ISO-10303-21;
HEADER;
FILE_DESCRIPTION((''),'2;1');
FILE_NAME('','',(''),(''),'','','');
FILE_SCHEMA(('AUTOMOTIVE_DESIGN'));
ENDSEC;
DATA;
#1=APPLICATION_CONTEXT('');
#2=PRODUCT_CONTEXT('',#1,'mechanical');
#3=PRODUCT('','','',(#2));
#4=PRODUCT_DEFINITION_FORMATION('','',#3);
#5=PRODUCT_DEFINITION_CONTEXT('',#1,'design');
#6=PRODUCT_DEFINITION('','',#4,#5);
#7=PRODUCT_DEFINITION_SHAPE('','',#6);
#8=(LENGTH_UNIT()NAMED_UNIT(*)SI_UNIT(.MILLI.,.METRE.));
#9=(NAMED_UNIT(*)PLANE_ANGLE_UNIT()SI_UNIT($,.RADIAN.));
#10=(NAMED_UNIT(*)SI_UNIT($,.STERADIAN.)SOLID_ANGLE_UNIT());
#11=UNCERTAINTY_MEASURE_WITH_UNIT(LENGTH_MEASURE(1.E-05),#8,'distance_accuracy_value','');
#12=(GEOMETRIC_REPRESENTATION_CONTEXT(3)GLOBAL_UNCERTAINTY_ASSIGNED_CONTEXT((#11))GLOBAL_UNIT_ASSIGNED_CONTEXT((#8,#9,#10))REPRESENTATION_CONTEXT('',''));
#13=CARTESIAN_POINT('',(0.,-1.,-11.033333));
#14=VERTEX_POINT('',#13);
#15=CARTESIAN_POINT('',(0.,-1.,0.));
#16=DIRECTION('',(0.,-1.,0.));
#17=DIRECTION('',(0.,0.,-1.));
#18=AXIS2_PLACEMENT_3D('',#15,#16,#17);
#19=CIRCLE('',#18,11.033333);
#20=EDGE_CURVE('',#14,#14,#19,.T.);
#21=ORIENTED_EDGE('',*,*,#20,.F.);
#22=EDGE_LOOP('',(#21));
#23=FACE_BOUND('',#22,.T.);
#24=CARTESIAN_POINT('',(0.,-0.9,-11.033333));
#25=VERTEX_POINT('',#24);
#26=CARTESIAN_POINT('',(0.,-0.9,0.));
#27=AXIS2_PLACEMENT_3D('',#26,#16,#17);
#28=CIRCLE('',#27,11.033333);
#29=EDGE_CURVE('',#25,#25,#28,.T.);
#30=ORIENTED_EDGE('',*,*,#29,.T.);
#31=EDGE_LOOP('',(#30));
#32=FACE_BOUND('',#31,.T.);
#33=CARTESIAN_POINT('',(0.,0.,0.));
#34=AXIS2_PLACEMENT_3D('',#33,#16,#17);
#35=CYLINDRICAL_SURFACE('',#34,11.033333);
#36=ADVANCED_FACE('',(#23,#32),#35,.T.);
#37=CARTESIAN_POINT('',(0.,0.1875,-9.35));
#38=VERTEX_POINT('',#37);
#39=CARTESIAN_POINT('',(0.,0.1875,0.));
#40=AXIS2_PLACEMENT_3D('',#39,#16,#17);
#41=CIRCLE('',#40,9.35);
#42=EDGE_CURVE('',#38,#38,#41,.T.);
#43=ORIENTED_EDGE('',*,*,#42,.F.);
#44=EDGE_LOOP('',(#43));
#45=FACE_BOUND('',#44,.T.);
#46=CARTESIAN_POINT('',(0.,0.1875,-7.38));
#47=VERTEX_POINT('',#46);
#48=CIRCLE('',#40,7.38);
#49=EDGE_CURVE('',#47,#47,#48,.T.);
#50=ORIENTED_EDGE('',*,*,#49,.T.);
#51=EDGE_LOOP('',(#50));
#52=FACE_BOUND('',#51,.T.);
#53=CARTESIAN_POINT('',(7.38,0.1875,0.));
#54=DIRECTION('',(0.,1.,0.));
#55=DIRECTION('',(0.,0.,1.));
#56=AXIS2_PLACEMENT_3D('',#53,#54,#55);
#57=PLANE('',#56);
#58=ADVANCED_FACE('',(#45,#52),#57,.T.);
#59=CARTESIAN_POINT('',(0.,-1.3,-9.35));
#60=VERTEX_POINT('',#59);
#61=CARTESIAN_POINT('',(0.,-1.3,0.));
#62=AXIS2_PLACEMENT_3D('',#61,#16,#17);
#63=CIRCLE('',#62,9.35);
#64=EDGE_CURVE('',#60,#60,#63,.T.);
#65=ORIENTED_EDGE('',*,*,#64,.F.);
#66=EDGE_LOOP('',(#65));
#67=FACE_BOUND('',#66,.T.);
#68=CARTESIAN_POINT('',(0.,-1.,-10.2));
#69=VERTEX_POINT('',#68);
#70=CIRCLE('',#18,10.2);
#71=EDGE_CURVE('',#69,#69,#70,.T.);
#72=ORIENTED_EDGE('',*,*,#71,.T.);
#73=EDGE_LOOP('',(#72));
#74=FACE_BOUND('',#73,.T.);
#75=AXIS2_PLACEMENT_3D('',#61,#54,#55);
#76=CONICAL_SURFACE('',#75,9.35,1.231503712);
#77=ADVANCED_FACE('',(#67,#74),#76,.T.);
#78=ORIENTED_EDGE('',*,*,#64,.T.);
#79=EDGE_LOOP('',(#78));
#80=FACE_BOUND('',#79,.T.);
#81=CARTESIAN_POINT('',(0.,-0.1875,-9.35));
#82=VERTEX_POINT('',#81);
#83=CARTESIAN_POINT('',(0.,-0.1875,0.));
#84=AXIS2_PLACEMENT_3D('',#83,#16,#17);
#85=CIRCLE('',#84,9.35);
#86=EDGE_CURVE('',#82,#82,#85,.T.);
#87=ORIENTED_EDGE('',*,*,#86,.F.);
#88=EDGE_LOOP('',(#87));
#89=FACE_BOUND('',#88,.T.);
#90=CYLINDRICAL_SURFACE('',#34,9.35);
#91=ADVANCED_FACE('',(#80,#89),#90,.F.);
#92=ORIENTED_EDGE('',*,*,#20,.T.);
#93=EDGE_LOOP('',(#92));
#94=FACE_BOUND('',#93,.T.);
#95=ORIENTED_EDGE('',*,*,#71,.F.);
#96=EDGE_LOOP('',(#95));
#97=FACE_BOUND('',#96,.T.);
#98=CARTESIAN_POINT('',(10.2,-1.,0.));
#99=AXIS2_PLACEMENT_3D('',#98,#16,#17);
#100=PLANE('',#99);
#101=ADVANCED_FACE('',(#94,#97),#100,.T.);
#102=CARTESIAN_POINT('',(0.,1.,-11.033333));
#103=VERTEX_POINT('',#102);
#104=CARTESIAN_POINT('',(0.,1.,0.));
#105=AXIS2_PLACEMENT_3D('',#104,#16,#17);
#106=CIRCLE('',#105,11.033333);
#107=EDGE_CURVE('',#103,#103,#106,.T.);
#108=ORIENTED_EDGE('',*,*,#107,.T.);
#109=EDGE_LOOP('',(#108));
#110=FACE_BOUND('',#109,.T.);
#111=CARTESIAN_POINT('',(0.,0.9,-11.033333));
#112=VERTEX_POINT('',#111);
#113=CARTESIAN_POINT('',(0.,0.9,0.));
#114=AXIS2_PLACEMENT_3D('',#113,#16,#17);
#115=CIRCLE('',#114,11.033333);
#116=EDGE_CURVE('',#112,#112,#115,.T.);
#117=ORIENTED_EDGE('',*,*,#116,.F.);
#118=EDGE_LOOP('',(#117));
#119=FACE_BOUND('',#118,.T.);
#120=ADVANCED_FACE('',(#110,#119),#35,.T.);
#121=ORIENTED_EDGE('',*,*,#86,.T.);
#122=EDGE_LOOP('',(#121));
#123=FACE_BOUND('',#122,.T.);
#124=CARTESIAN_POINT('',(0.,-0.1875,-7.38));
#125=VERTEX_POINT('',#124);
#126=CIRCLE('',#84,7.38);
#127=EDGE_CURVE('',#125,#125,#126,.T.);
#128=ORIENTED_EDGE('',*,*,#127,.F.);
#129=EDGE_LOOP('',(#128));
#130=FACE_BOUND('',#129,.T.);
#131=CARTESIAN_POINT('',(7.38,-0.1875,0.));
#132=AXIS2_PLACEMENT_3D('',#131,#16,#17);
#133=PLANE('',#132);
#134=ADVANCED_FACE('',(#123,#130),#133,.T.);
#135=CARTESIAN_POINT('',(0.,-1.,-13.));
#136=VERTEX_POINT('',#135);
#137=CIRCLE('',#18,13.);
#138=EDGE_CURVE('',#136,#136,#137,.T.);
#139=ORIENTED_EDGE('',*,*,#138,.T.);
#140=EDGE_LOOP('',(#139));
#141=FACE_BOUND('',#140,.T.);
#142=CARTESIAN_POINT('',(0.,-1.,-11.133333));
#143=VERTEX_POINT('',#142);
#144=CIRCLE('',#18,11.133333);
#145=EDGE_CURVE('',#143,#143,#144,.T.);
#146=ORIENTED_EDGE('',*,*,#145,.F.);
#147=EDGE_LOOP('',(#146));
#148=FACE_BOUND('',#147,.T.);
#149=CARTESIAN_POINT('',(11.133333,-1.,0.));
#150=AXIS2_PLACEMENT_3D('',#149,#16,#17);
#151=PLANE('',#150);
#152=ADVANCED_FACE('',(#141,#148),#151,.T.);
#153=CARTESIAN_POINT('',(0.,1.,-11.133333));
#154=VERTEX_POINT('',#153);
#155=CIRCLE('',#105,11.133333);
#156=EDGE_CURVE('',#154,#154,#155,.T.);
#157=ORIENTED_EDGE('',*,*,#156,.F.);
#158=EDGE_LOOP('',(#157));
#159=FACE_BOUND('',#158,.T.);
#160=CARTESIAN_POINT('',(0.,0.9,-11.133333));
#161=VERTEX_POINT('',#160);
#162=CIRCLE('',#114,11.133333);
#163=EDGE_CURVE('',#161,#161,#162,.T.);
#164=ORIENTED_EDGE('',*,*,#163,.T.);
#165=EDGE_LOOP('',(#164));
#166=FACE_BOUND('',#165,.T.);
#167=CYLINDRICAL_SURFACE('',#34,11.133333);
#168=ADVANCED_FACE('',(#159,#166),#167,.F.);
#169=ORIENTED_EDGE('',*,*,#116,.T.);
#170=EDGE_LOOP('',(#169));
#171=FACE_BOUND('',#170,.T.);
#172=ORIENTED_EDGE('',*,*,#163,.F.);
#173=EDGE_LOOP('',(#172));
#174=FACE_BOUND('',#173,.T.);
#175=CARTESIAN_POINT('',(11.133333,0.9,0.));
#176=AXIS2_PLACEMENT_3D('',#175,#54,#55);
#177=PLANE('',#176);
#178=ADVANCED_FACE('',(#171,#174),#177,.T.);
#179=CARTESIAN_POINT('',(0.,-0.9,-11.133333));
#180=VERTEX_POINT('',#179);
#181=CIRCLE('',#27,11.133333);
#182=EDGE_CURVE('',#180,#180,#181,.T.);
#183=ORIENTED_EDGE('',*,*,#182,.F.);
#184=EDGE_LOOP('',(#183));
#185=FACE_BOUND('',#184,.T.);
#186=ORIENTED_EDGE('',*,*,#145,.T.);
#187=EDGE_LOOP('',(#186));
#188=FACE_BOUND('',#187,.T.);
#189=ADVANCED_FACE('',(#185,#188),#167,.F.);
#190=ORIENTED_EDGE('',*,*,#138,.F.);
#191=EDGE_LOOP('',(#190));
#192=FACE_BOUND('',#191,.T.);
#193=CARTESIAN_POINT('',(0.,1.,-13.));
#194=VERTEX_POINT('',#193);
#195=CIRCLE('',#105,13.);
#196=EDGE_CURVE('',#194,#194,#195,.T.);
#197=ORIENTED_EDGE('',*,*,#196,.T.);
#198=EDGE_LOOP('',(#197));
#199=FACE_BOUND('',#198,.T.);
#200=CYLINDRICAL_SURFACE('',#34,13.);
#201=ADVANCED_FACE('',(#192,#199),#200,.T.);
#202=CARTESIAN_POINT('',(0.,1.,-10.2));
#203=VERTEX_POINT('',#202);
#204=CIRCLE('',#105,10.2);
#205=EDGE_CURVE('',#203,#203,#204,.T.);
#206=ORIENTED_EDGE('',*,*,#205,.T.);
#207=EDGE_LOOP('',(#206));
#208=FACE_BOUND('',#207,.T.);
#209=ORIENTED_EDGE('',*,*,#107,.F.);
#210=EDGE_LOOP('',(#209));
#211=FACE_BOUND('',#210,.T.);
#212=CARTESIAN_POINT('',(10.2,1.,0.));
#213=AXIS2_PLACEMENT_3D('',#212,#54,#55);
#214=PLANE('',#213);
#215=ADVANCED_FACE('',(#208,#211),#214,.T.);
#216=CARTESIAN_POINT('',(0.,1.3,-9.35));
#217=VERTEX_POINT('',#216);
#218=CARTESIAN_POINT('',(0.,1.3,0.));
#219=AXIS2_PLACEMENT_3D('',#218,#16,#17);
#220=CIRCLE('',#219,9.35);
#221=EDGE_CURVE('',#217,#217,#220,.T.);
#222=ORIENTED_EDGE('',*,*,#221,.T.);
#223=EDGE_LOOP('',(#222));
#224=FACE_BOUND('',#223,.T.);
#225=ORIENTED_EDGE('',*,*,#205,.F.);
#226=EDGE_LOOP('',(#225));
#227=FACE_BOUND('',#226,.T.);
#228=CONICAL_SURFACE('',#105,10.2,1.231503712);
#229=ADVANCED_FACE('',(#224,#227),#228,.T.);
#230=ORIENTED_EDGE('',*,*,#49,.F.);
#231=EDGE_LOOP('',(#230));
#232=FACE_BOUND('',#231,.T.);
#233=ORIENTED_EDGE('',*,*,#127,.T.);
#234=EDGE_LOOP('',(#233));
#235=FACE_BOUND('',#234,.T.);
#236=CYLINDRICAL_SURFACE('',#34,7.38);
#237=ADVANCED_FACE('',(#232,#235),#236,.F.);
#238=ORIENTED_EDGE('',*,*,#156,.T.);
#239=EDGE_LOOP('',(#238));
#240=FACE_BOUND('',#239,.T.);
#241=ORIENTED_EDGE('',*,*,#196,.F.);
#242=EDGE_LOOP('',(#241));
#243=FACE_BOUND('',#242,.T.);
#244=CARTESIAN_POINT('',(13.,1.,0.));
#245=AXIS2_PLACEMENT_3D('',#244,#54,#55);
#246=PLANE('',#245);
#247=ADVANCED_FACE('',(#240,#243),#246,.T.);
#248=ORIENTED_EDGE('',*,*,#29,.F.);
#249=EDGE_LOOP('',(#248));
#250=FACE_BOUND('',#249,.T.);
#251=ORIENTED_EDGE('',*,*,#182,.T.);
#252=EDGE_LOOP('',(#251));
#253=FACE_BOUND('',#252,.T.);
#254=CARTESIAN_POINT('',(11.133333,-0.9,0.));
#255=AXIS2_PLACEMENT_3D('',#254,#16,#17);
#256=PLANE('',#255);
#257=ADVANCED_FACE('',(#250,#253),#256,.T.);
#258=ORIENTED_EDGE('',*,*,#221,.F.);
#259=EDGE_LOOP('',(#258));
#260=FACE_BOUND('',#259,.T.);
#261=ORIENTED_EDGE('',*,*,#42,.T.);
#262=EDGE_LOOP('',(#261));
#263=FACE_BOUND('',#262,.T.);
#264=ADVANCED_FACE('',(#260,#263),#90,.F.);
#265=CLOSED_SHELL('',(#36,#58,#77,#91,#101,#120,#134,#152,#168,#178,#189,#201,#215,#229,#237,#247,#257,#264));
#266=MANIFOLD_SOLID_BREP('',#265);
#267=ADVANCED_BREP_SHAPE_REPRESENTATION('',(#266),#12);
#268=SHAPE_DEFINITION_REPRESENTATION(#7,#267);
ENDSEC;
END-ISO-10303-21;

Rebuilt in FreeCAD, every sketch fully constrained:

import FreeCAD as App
import Part
import Sketcher


def add_polygon(sketch, points):
    """Adds a closed chain of lines whose ends are joined by coincident constraints."""
    first, n = sketch.GeometryCount, len(points)
    for a, b in zip(points, points[1:] + points[:1]):
        sketch.addGeometry(Part.LineSegment(App.Vector(*a, 0), App.Vector(*b, 0)), False)
    for i in range(n):
        sketch.addConstraint(Sketcher.Constraint("Coincident", first + i, 2, first + (i + 1) % n, 1))

doc = App.newDocument("Part")
body = doc.addObject("PartDesign::Body", "Body")

# Sketch on XY plane
sketch1 = doc.addObject("Sketcher::SketchObject", "Sketch")
body.addObject(sketch1)
sketch1.AttachmentSupport = (doc.XY_Plane, [""])
sketch1.MapMode = "FlatFace"
add_polygon(sketch1, [(7.38, 0.19), (7.38, -0.19), (9.35, -0.19), (9.35, -1.3), (10.2, -1), (11.03, -1), (11.03, -0.9), (11.13, -0.9), (11.13, -1), (13, -1), (13, 1), (11.13, 1), (11.13, 0.9), (11.03, 0.9), (11.03, 1), (10.2, 1), (9.35, 1.3), (9.35, 0.19)])  # lines 0-17
sketch1.addConstraint(Sketcher.Constraint("Vertical", 0))
sketch1.addConstraint(Sketcher.Constraint("Horizontal", 1))
sketch1.addConstraint(Sketcher.Constraint("Vertical", 2))
sketch1.addConstraint(Sketcher.Constraint("Horizontal", 4))
sketch1.addConstraint(Sketcher.Constraint("Vertical", 5))
sketch1.addConstraint(Sketcher.Constraint("Horizontal", 6))
sketch1.addConstraint(Sketcher.Constraint("Vertical", 7))
sketch1.addConstraint(Sketcher.Constraint("Horizontal", 8))
sketch1.addConstraint(Sketcher.Constraint("Vertical", 9))
sketch1.addConstraint(Sketcher.Constraint("Horizontal", 10))
sketch1.addConstraint(Sketcher.Constraint("Vertical", 11))
sketch1.addConstraint(Sketcher.Constraint("Horizontal", 12))
sketch1.addConstraint(Sketcher.Constraint("Vertical", 13))
sketch1.addConstraint(Sketcher.Constraint("Horizontal", 14))
sketch1.addConstraint(Sketcher.Constraint("Vertical", 16))
sketch1.addConstraint(Sketcher.Constraint("Horizontal", 17))
sketch1.addConstraint(Sketcher.Constraint("Symmetric", 7, 2, 10, 2, -1))
sketch1.addConstraint(Sketcher.Constraint("Symmetric", 5, 2, 12, 2, -1))
sketch1.addConstraint(Sketcher.Constraint("Symmetric", 3, 2, 14, 2, -1))
sketch1.addConstraint(Sketcher.Constraint("Symmetric", 2, 2, 15, 2, -1))
sketch1.addConstraint(Sketcher.Constraint("Horizontal", 4, 2, 7, 2))
sketch1.addConstraint(Sketcher.Constraint("Equal", 12, 5))
sketch1.addConstraint(Sketcher.Constraint("Equal", 2, 16))
sketch1.addConstraint(Sketcher.Constraint("DistanceY", 9, 1, 9, 2, 2.0))
sketch1.addConstraint(Sketcher.Constraint("DistanceX", 6, 1, 6, 2, 0.1))
sketch1.addConstraint(Sketcher.Constraint("DistanceX", -1, 1, 8, 2, 13.0))
sketch1.addConstraint(Sketcher.Constraint("DistanceX", 1, 1, 1, 2, 1.97))
sketch1.addConstraint(Sketcher.Constraint("DistanceY", 2, 2, -1, 1, 1.3))
sketch1.addConstraint(Sketcher.Constraint("DistanceX", -1, 1, 3, 2, 10.2))
sketch1.addConstraint(Sketcher.Constraint("DistanceY", 0, 2, 0, 1, 0.375))
sketch1.addConstraint(Sketcher.Constraint("DistanceX", -1, 1, 0, 2, 7.38))
sketch1.addConstraint(Sketcher.Constraint("DistanceX", 4, 1, 4, 2, 0.833333))
revolution = doc.addObject("PartDesign::Revolution", "Revolution")
body.addObject(revolution)
revolution.Profile = sketch1
revolution.ReferenceAxis = (sketch1, ["V_Axis"])
revolution.Angle = 360

doc.recompute()
